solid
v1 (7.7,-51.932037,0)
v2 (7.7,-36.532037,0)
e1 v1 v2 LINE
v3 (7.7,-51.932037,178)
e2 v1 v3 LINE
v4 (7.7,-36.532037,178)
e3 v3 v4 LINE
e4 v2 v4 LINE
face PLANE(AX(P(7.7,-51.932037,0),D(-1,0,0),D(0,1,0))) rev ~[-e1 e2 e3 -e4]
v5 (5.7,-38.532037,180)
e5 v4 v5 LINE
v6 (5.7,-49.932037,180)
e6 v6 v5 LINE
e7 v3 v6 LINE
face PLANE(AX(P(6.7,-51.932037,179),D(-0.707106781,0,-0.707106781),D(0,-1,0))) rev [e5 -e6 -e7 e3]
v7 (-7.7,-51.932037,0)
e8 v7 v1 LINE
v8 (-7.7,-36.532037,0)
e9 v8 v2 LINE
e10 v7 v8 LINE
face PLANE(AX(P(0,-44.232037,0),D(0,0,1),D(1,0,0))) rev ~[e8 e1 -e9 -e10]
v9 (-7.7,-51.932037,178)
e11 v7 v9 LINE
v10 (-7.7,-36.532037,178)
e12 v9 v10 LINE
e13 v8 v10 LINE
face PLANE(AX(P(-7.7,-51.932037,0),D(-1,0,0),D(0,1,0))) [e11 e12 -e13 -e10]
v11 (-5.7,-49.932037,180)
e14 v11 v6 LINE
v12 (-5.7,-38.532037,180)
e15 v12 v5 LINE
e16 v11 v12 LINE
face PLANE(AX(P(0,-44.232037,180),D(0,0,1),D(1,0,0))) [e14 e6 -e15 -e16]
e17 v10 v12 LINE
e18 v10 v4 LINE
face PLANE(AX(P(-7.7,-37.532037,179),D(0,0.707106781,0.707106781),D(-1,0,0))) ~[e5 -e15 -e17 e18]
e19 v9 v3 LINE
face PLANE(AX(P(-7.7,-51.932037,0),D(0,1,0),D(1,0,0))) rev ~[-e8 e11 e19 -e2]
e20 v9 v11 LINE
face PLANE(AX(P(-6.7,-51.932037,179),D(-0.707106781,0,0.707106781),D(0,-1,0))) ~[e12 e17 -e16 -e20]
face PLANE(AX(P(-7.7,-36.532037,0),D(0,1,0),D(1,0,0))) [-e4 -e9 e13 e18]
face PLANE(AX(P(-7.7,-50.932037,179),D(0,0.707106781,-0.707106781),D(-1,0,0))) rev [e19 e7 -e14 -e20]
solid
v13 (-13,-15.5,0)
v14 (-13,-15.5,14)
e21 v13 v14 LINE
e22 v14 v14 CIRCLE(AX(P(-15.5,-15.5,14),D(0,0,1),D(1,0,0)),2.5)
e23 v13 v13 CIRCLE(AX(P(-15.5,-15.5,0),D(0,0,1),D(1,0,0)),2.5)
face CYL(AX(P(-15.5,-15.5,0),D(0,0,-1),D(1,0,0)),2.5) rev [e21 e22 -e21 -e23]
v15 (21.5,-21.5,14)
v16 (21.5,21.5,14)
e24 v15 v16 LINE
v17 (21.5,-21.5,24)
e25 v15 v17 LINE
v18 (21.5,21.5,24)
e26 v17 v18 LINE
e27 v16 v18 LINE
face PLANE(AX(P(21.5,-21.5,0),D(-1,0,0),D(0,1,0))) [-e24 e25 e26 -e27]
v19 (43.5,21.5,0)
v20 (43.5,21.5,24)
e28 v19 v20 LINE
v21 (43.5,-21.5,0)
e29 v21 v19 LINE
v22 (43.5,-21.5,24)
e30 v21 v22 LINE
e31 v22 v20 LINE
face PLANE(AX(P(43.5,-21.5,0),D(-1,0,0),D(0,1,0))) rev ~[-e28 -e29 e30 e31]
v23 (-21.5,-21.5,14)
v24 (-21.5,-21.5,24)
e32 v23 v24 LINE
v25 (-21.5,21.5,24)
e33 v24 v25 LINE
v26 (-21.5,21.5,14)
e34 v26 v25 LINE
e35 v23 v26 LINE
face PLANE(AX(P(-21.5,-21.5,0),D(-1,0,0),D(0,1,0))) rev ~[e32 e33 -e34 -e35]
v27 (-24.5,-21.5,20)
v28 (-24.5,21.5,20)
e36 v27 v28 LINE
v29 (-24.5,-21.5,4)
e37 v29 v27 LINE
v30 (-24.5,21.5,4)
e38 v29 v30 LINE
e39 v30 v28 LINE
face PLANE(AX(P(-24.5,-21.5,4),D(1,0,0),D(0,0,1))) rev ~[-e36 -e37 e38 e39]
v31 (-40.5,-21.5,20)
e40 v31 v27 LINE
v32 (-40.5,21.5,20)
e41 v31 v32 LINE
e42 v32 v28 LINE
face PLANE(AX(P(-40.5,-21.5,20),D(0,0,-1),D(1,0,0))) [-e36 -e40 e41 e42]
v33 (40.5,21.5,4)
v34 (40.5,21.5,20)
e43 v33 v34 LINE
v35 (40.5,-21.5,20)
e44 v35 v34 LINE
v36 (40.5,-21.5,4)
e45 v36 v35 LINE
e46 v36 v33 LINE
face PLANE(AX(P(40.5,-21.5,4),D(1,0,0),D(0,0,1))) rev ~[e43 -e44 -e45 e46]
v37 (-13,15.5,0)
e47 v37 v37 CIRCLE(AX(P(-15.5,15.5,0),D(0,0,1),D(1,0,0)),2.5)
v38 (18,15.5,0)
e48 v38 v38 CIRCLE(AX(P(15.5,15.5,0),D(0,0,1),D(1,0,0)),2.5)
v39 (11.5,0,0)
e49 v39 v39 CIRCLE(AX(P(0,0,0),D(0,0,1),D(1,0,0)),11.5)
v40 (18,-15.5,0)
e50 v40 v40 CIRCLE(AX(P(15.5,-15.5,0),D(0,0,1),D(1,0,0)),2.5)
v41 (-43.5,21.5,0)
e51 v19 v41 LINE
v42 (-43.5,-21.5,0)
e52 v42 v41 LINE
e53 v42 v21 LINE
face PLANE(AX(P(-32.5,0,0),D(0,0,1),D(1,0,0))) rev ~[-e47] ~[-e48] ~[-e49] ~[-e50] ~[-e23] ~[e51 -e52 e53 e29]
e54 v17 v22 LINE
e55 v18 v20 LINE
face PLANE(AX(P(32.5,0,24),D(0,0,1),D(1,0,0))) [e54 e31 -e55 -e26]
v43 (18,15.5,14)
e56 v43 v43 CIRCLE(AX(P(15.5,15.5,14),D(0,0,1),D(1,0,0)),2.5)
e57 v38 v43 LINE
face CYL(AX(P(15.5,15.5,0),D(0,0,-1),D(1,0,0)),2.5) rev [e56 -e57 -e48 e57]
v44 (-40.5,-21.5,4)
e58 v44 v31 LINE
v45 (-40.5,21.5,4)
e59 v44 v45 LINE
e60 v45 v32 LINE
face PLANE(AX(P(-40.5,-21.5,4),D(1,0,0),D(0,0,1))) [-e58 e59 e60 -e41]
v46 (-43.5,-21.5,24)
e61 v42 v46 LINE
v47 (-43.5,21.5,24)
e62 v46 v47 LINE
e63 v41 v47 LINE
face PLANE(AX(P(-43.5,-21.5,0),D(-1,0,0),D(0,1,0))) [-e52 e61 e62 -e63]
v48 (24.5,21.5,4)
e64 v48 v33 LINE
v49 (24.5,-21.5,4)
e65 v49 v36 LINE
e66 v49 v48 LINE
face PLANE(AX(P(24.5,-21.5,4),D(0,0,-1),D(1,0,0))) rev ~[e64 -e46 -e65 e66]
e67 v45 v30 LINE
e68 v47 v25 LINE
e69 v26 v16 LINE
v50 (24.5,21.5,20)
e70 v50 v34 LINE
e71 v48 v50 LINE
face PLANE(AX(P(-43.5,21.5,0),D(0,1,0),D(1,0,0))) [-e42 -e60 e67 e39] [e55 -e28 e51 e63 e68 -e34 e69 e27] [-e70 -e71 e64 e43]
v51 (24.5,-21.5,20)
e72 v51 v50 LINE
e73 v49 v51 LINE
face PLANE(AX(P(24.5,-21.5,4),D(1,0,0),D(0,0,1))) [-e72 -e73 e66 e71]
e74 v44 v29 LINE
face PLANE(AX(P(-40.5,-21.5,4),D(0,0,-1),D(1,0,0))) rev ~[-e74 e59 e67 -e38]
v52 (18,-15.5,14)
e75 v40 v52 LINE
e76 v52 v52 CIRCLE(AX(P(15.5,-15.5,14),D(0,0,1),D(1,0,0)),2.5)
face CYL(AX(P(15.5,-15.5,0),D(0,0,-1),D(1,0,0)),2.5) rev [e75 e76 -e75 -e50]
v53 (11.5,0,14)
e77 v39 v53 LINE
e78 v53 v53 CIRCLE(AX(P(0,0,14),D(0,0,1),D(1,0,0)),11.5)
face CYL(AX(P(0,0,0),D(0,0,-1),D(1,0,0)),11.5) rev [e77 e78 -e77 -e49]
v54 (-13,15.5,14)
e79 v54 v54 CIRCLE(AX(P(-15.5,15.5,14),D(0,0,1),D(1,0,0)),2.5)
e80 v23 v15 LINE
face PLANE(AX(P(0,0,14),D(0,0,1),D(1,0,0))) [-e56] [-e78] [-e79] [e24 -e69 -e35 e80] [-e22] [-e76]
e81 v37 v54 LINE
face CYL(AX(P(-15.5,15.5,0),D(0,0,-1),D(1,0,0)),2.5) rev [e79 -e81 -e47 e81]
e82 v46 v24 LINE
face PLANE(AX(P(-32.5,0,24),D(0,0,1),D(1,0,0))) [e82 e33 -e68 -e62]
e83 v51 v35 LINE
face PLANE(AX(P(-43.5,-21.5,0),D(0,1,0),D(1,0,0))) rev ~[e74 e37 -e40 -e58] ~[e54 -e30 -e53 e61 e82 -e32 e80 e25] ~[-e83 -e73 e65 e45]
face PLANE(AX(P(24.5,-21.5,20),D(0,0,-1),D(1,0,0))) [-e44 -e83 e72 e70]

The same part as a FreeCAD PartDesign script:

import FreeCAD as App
import Part
import Sketcher
from FreeCAD import Vector


def edges_at(feature, points):
    """Names of the edges that pass closest to the given points."""
    edges = feature.Shape.Edges
    near = lambda p: min(range(len(edges)), key=lambda i: edges[i].distToShape(Part.Vertex(*p))[0])
    return sorted({f"Edge{near(p) + 1}" for p in points})

doc = App.newDocument("Part")
body = doc.addObject("PartDesign::Body", "Body")

# Sketch on XY plane
sketch1 = body.newObject("Sketcher::SketchObject", "Sketch")
sketch1.AttachmentSupport = (doc.getObject("XY_Plane"), [""])
sketch1.MapMode = "FlatFace"
sketch1.addGeometry([
    Part.LineSegment(Vector(-21.5, 21.5, 0), Vector(-21.5, -21.5, 0)),  # 0
    Part.LineSegment(Vector(-21.5, -21.5, 0), Vector(21.5, -21.5, 0)),  # 1
    Part.LineSegment(Vector(21.5, -21.5, 0), Vector(21.5, 21.5, 0)),  # 2
    Part.LineSegment(Vector(21.5, 21.5, 0), Vector(-21.5, 21.5, 0)),  # 3
    Part.Circle(Vector(-15.5, -15.5, 0), Vector(0, 0, 1), 2.5),  # 4
    Part.Circle(Vector(15.5, -15.5, 0), Vector(0, 0, 1), 2.5),  # 5
    Part.Circle(Vector(-15.5, 15.5, 0), Vector(0, 0, 1), 2.5),  # 6
    Part.Circle(Vector(0, 0, 0), Vector(0, 0, 1), 11.5),  # 7
    Part.Circle(Vector(15.5, 15.5, 0), Vector(0, 0, 1), 2.5),  # 8
], False)
sketch1.addConstraint([
    Sketcher.Constraint("Coincident", 0, 2, 1, 1),
    Sketcher.Constraint("Coincident", 1, 2, 2, 1),
    Sketcher.Constraint("Coincident", 2, 2, 3, 1),
    Sketcher.Constraint("Coincident", 3, 2, 0, 1),
    Sketcher.Constraint("Vertical", 0),
    Sketcher.Constraint("Horizontal", 1),
    Sketcher.Constraint("Vertical", 2),
    Sketcher.Constraint("Horizontal", 3),
    Sketcher.Constraint("Coincident", 7, 3, -1, 1),
    Sketcher.Constraint("Equal", 4, 5),
    Sketcher.Constraint("Equal", 5, 6),
    Sketcher.Constraint("Equal", 6, 8),
    Sketcher.Constraint("Symmetric", 5, 3, 6, 3, -1, 1),
    Sketcher.Constraint("Symmetric", 4, 3, 8, 3, -1, 1),
    Sketcher.Constraint("Symmetric", 0, 2, 2, 2, -1, 1),
    Sketcher.Constraint("Symmetric", 4, 3, 5, 3, -2),
    Sketcher.Constraint("Equal", 3, 0),
    Sketcher.Constraint("Diameter", 4, 5.0),
    Sketcher.Constraint("Diameter", 7, 23.0),
    Sketcher.Constraint("DistanceX", 1, 1, 1, 2, 43.0),
    Sketcher.Constraint("DistanceX", 4, 3, 5, 3, 31.0),
    Sketcher.Constraint("DistanceY", 4, 3, 6, 3, 31.0),
])
pad1 = body.newObject("PartDesign::Pad", "Pad")
pad1.Profile = sketch1
pad1.Length = 14

# Sketch on XY plane
sketch2 = body.newObject("Sketcher::SketchObject", "Sketch001")
sketch2.AttachmentSupport = (doc.getObject("XY_Plane"), [""])
sketch2.MapMode = "FlatFace"
sketch2.addGeometry([
    Part.LineSegment(Vector(-43.5, 21.5, 0), Vector(-43.5, -21.5, 0)),  # 0
    Part.LineSegment(Vector(-43.5, -21.5, 0), Vector(-21.5, -21.5, 0)),  # 1
    Part.LineSegment(Vector(-21.5, -21.5, 0), Vector(-21.5, 21.5, 0)),  # 2
    Part.LineSegment(Vector(-21.5, 21.5, 0), Vector(-43.5, 21.5, 0)),  # 3
    Part.LineSegment(Vector(21.5, 21.5, 0), Vector(21.5, -21.5, 0)),  # 4
    Part.LineSegment(Vector(21.5, -21.5, 0), Vector(43.5, -21.5, 0)),  # 5
    Part.LineSegment(Vector(43.5, -21.5, 0), Vector(43.5, 21.5, 0)),  # 6
    Part.LineSegment(Vector(43.5, 21.5, 0), Vector(21.5, 21.5, 0)),  # 7
], False)
sketch2.addConstraint([
    Sketcher.Constraint("Coincident", 0, 2, 1, 1),
    Sketcher.Constraint("Coincident", 1, 2, 2, 1),
    Sketcher.Constraint("Coincident", 2, 2, 3, 1),
    Sketcher.Constraint("Coincident", 3, 2, 0, 1),
    Sketcher.Constraint("Coincident", 4, 2, 5, 1),
    Sketcher.Constraint("Coincident", 5, 2, 6, 1),
    Sketcher.Constraint("Coincident", 6, 2, 7, 1),
    Sketcher.Constraint("Coincident", 7, 2, 4, 1),
    Sketcher.Constraint("Vertical", 0),
    Sketcher.Constraint("Horizontal", 1),
    Sketcher.Constraint("Vertical", 2),
    Sketcher.Constraint("Horizontal", 3),
    Sketcher.Constraint("Vertical", 4),
    Sketcher.Constraint("Horizontal", 5),
    Sketcher.Constraint("Vertical", 6),
    Sketcher.Constraint("Horizontal", 7),
    Sketcher.Constraint("Symmetric", 2, 2, 4, 2, -1, 1),
    Sketcher.Constraint("Symmetric", 0, 2, 6, 2, -1, 1),
    Sketcher.Constraint("Horizontal", 1, 2, 4, 2),
    Sketcher.Constraint("DistanceX", 1, 1, 1, 2, 22.0),
    Sketcher.Constraint("DistanceY", 0, 2, 0, 1, 43.0),
    Sketcher.Constraint("DistanceX", 1, 2, 4, 2, 43.0),
])
pad2 = body.newObject("PartDesign::Pad", "Pad001")
pad2.Profile = sketch2
pad2.Length = 24

# Sketch on XZ plane
sketch3 = body.newObject("Sketcher::SketchObject", "Sketch002")
sketch3.AttachmentSupport = (doc.getObject("XZ_Plane"), [""])
sketch3.MapMode = "FlatFace"
sketch3.AttachmentOffset = App.Placement(Vector(0, 0, 21.5), App.Rotation())
sketch3.addGeometry([
    Part.LineSegment(Vector(-40.5, 20, 0), Vector(-40.5, 4, 0)),  # 0
    Part.LineSegment(Vector(-40.5, 4, 0), Vector(-24.5, 4, 0)),  # 1
    Part.LineSegment(Vector(-24.5, 4, 0), Vector(-24.5, 20, 0)),  # 2
    Part.LineSegment(Vector(-24.5, 20, 0), Vector(-40.5, 20, 0)),  # 3
    Part.LineSegment(Vector(24.5, 20, 0), Vector(24.5, 4, 0)),  # 4
    Part.LineSegment(Vector(24.5, 4, 0), Vector(40.5, 4, 0)),  # 5
    Part.LineSegment(Vector(40.5, 4, 0), Vector(40.5, 20, 0)),  # 6
    Part.LineSegment(Vector(40.5, 20, 0), Vector(24.5, 20, 0)),  # 7
], False)
sketch3.addConstraint([
    Sketcher.Constraint("Coincident", 0, 2, 1, 1),
    Sketcher.Constraint("Coincident", 1, 2, 2, 1),
    Sketcher.Constraint("Coincident", 2, 2, 3, 1),
    Sketcher.Constraint("Coincident", 3, 2, 0, 1),
    Sketcher.Constraint("Coincident", 4, 2, 5, 1),
    Sketcher.Constraint("Coincident", 5, 2, 6, 1),
    Sketcher.Constraint("Coincident", 6, 2, 7, 1),
    Sketcher.Constraint("Coincident", 7, 2, 4, 1),
    Sketcher.Constraint("Vertical", 0),
    Sketcher.Constraint("Horizontal", 1),
    Sketcher.Constraint("Vertical", 2),
    Sketcher.Constraint("Horizontal", 3),
    Sketcher.Constraint("Vertical", 4),
    Sketcher.Constraint("Horizontal", 5),
    Sketcher.Constraint("Vertical", 6),
    Sketcher.Constraint("Horizontal", 7),
    Sketcher.Constraint("Symmetric", 1, 2, 4, 2, -2),
    Sketcher.Constraint("Symmetric", 3, 2, 6, 2, -2),
    Sketcher.Constraint("Equal", 7, 0),
    Sketcher.Constraint("DistanceX", 1, 1, 1, 2, 16.0),
    Sketcher.Constraint("DistanceY", -1, 1, 0, 2, 4.0),
    Sketcher.Constraint("DistanceX", 1, 2, 4, 2, 49.0),
])
pocket1 = body.newObject("PartDesign::Pocket", "Pocket")
pocket1.Profile = sketch3
pocket1.Type = "ThroughAll"
body2 = doc.addObject("PartDesign::Body", "Body001")

# Sketch on XY plane
sketch4 = body2.newObject("Sketcher::SketchObject", "Sketch003")
sketch4.AttachmentSupport = (doc.getObject("XY_Plane001"), [""])
sketch4.MapMode = "FlatFace"
sketch4.addGeometry([
    Part.LineSegment(Vector(-7.7, -36.532037, 0), Vector(-7.7, -51.932037, 0)),
    Part.LineSegment(Vector(-7.7, -51.932037, 0), Vector(7.7, -51.932037, 0)),
    Part.LineSegment(Vector(7.7, -51.932037, 0), Vector(7.7, -36.532037, 0)),
    Part.LineSegment(Vector(7.7, -36.532037, 0), Vector(-7.7, -36.532037, 0)),
], False)
sketch4.addConstraint([
    Sketcher.Constraint("Coincident", 0, 2, 1, 1),
    Sketcher.Constraint("Coincident", 1, 2, 2, 1),
    Sketcher.Constraint("Coincident", 2, 2, 3, 1),
    Sketcher.Constraint("Coincident", 3, 2, 0, 1),
    Sketcher.Constraint("Vertical", 0),
    Sketcher.Constraint("Horizontal", 1),
    Sketcher.Constraint("Vertical", 2),
    Sketcher.Constraint("Horizontal", 3),
    Sketcher.Constraint("Equal", 3, 0),
    Sketcher.Constraint("DistanceX", 1, 1, 1, 2, 15.4),
    Sketcher.Constraint("DistanceX", 0, 2, -1, 1, 7.7),
    Sketcher.Constraint("DistanceY", 0, 2, -1, 1, 51.932037),
])
pad3 = body2.newObject("PartDesign::Pad", "Pad002")
pad3.Profile = sketch4
pad3.Length = 180
doc.recompute()

chamfer = body2.newObject("PartDesign::Chamfer", "Chamfer")
chamfer.Base = (pad3, edges_at(pad3, [
    (0, -51.932, 180),
    (7.7, -44.232, 180),
    (-7.7, -44.232, 180),
    (0, -36.532, 180),
]))
chamfer.Size = 2

doc.recompute()
